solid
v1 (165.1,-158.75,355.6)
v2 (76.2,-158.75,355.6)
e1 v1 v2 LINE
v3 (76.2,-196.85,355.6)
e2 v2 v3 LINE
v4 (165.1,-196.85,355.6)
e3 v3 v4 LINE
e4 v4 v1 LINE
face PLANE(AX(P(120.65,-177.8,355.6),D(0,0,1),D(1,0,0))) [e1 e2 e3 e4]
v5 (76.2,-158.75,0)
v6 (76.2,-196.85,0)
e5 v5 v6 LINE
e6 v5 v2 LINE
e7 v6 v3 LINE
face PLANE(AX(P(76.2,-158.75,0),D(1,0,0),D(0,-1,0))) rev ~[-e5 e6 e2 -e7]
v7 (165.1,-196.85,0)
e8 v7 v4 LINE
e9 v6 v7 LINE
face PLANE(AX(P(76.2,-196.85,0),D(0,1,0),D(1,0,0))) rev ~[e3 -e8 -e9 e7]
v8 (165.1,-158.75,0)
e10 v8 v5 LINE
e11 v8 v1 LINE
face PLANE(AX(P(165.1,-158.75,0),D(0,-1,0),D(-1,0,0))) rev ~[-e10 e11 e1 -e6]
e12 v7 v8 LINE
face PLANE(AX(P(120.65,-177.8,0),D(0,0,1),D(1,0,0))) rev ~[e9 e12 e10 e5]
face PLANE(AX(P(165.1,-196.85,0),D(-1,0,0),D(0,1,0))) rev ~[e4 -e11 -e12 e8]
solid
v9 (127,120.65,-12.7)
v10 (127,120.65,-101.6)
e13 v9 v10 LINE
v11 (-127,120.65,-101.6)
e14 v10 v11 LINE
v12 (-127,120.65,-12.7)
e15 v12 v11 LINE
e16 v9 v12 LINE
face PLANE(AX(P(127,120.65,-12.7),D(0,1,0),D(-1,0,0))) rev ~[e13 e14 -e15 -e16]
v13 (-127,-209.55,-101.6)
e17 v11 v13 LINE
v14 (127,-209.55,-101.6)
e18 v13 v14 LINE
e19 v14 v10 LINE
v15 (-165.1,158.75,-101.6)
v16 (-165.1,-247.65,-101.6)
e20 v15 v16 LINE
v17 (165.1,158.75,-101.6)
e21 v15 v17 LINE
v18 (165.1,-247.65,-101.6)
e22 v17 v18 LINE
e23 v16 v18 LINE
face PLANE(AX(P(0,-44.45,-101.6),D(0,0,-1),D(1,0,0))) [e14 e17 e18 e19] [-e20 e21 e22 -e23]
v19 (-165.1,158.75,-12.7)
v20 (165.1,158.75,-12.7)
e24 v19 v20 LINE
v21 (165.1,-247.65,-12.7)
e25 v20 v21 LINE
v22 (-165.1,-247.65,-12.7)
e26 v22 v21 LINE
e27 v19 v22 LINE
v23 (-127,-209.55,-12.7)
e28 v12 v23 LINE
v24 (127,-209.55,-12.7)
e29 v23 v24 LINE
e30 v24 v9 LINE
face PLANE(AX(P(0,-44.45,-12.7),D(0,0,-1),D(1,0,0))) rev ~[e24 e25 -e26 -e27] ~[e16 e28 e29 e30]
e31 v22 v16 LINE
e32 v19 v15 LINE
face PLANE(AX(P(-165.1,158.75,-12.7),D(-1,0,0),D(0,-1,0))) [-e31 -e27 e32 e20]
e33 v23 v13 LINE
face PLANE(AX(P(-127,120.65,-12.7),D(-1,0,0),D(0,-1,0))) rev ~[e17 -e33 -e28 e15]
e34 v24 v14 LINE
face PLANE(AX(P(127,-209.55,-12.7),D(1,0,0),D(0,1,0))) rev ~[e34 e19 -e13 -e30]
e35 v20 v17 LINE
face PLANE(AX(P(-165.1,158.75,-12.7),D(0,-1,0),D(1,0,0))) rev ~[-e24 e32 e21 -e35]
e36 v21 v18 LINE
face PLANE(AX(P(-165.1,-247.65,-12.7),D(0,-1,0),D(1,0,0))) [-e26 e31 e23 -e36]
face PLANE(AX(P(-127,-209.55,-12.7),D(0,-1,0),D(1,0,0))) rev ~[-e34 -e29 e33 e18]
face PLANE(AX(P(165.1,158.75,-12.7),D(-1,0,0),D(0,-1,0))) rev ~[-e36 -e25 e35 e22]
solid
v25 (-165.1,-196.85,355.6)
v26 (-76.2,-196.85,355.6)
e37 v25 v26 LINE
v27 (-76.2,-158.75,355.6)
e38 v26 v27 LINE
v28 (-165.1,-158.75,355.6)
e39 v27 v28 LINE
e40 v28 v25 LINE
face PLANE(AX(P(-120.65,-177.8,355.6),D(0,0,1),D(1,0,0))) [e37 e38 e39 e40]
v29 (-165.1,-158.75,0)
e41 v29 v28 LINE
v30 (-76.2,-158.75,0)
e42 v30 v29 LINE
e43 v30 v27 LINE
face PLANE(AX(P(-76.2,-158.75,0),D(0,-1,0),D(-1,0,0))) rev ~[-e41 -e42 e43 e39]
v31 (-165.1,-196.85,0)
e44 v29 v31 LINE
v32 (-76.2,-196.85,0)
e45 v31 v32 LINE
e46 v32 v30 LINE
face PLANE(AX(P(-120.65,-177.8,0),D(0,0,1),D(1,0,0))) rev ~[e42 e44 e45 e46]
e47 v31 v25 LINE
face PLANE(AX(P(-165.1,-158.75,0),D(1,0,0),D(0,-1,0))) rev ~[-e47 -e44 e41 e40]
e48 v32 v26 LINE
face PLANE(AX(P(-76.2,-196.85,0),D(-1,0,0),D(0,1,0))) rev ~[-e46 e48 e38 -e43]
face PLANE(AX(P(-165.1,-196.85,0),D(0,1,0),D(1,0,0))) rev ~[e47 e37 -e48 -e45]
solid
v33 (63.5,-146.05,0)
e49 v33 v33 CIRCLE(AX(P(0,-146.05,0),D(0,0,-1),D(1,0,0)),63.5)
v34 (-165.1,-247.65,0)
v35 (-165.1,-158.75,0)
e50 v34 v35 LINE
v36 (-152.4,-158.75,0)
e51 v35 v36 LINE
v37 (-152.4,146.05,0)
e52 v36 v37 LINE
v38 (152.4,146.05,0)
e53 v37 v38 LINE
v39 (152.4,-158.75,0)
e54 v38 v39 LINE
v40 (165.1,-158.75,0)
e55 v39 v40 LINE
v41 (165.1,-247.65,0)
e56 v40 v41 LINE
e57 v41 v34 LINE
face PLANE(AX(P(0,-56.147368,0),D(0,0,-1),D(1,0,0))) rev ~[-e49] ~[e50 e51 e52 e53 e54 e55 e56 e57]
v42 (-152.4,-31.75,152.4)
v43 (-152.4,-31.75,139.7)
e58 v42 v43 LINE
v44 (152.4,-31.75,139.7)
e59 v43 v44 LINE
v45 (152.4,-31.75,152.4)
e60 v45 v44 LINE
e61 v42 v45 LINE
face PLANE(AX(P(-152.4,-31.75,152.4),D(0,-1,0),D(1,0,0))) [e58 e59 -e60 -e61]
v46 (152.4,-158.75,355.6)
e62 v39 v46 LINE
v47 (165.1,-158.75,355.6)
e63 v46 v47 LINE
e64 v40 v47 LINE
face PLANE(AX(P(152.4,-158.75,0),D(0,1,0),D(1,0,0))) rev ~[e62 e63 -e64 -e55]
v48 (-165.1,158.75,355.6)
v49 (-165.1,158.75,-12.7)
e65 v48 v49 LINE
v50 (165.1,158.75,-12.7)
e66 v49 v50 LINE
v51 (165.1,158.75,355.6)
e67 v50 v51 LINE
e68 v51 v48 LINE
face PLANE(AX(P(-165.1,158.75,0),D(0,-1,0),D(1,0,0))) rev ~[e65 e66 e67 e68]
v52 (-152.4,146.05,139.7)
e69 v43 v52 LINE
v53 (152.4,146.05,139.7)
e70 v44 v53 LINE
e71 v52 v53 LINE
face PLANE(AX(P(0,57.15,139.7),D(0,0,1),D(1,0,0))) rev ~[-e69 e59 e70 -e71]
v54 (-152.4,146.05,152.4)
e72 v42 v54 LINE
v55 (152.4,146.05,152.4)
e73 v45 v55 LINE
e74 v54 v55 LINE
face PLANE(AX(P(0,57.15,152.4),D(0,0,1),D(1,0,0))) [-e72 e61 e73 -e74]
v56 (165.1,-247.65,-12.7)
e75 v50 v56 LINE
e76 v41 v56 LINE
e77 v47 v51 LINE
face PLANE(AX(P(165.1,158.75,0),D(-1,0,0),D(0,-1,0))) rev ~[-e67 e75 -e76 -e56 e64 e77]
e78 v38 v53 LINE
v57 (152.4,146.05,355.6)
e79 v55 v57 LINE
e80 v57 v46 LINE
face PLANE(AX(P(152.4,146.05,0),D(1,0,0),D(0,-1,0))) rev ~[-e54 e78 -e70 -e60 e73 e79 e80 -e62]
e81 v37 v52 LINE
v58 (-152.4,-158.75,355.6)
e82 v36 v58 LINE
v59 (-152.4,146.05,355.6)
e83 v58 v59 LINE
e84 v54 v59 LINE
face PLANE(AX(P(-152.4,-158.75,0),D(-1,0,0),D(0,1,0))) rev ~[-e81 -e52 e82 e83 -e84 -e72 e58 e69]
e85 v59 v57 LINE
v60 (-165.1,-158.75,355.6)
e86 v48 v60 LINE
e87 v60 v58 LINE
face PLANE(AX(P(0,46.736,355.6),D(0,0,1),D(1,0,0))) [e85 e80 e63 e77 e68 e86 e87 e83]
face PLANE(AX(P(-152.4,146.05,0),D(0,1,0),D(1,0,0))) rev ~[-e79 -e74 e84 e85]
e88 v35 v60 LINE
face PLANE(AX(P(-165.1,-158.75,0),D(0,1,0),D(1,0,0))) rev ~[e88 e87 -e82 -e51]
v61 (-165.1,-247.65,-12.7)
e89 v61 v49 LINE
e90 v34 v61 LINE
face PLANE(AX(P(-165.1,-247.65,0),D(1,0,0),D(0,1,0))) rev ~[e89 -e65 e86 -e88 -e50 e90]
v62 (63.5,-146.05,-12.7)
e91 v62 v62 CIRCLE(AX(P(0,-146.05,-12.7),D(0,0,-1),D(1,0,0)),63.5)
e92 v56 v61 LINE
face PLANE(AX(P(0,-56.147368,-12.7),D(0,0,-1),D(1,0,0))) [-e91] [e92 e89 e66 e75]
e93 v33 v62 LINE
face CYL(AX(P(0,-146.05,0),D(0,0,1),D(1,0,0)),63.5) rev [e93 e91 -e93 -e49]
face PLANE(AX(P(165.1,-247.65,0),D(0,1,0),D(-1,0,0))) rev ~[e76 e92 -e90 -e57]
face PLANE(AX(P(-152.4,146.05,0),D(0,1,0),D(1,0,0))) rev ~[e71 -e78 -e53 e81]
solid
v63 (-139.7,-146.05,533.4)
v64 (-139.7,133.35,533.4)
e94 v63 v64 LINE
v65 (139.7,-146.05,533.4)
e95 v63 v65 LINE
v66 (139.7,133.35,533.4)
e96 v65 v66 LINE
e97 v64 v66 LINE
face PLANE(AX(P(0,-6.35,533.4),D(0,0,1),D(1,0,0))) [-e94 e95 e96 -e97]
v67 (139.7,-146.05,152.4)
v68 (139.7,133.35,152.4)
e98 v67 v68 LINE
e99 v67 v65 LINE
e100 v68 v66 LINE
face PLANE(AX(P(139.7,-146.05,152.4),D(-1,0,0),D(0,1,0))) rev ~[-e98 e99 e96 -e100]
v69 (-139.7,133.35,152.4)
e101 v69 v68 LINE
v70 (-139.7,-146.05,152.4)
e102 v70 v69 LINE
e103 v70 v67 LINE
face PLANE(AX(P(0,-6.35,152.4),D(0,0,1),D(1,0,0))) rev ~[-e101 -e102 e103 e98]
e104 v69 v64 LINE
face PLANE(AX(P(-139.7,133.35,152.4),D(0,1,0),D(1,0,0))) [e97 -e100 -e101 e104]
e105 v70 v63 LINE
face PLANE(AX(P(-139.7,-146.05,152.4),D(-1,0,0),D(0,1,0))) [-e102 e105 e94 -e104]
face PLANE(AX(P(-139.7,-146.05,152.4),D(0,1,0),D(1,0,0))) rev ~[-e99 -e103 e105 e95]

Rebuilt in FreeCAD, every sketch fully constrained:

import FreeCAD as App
import Part
import Sketcher
from FreeCAD import Vector
Q = App.Units.Quantity


def add_polygon(sketch, points):
    """Adds a closed chain of lines whose ends are joined by coincident constraints."""
    first, n = sketch.GeometryCount, len(points)
    for a, b in zip(points, points[1:] + points[:1]):
        sketch.addGeometry(Part.LineSegment(App.Vector(*a, 0), App.Vector(*b, 0)), False)
    for i in range(n):
        sketch.addConstraint(Sketcher.Constraint("Coincident", first + i, 2, first + (i + 1) % n, 1))

doc = App.newDocument("Part")
body = doc.addObject("PartDesign::Body", "Body")

# Sketch on XY plane
sketch1 = doc.addObject("Sketcher::SketchObject", "Sketch")
body.addObject(sketch1)
sketch1.AttachmentSupport = (doc.XY_Plane, [""])
sketch1.MapMode = "FlatFace"
add_polygon(sketch1, [(165, 159), (-165, 159), (-165, -159), (-152, -159), (-152, 146), (152, 146), (152, -159), (165, -159)])  # lines 0-7
sketch1.addConstraint(Sketcher.Constraint("Horizontal", 0))
sketch1.addConstraint(Sketcher.Constraint("Vertical", 1))
sketch1.addConstraint(Sketcher.Constraint("Horizontal", 2))
sketch1.addConstraint(Sketcher.Constraint("Vertical", 3))
sketch1.addConstraint(Sketcher.Constraint("Horizontal", 4))
sketch1.addConstraint(Sketcher.Constraint("Vertical", 5))
sketch1.addConstraint(Sketcher.Constraint("Horizontal", 6))
sketch1.addConstraint(Sketcher.Constraint("Vertical", 7))
sketch1.addConstraint(Sketcher.Constraint("Symmetric", 0, 2, 6, 2, -1, 1))
sketch1.addConstraint(Sketcher.Constraint("Symmetric", 2, 2, 5, 2, -2))
sketch1.addConstraint(Sketcher.Constraint("Equal", 4, 3))
sketch1.addConstraint(Sketcher.Constraint("DistanceX", 0, 2, 0, 1, Q("13 in")))
sketch1.addConstraint(Sketcher.Constraint("DistanceX", 4, 1, 4, 2, Q("12 in")))
sketch1.addConstraint(Sketcher.Constraint("DistanceY", 1, 2, 1, 1, Q("12.5 in")))
pad1 = doc.addObject("PartDesign::Pad", "Pad")
body.addObject(pad1)
pad1.Profile = sketch1
pad1.Length = Q("14 in")

# Sketch on XY plane
sketch2 = doc.addObject("Sketcher::SketchObject", "Sketch001")
body.addObject(sketch2)
sketch2.AttachmentSupport = (doc.XY_Plane, [""])
sketch2.MapMode = "FlatFace"
add_polygon(sketch2, [(165, -248), (-165, -248), (-165, 159), (165, 159)])  # lines 0-3
sketch2.addGeometry(Part.Circle(Vector(0, -146, 0), Vector(0, 0, 1), 64), False)  # 4
sketch2.addConstraint(Sketcher.Constraint("Horizontal", 0))
sketch2.addConstraint(Sketcher.Constraint("Vertical", 1))
sketch2.addConstraint(Sketcher.Constraint("Horizontal", 2))
sketch2.addConstraint(Sketcher.Constraint("Vertical", 3))
sketch2.addConstraint(Sketcher.Constraint("PointOnObject", 4, 3, -2))
sketch2.addConstraint(Sketcher.Constraint("Diameter", 4, Q("5 in")))
sketch2.addConstraint(Sketcher.Constraint("DistanceX", 0, 2, 0, 1, Q("13 in")))
sketch2.addConstraint(Sketcher.Constraint("DistanceY", 1, 1, 1, 2, Q("16 in")))
sketch2.addConstraint(Sketcher.Constraint("DistanceY", 0, 2, 4, 3, Q("4 in")))
sketch2.addConstraint(Sketcher.Constraint("DistanceX", 0, 2, -1, 1, Q("6.5 in")))
sketch2.addConstraint(Sketcher.Constraint("DistanceY", 4, 3, -1, 1, Q("5.75 in")))
pad2 = doc.addObject("PartDesign::Pad", "Pad001")
body.addObject(pad2)
pad2.Profile = sketch2
pad2.Length = Q("0.5 in")
pad2.Reversed = True

# Sketch on XY plane
sketch3 = doc.addObject("Sketcher::SketchObject", "Sketch002")
body.addObject(sketch3)
sketch3.AttachmentSupport = (doc.XY_Plane, [""])
sketch3.MapMode = "FlatFace"
sketch3.AttachmentOffset = App.Placement(Vector(0, 0, 6 * 25.4), App.Rotation())
add_polygon(sketch3, [(-152, 146), (-152, -32), (152, -32), (152, 146)])  # lines 0-3
sketch3.addConstraint(Sketcher.Constraint("Vertical", 0))
sketch3.addConstraint(Sketcher.Constraint("Horizontal", 1))
sketch3.addConstraint(Sketcher.Constraint("Vertical", 2))
sketch3.addConstraint(Sketcher.Constraint("Horizontal", 3))
sketch3.addConstraint(Sketcher.Constraint("DistanceX", 1, 1, 1, 2, Q("12 in")))
sketch3.addConstraint(Sketcher.Constraint("DistanceY", 0, 2, 0, 1, Q("7 in")))
sketch3.addConstraint(Sketcher.Constraint("DistanceX", 0, 2, -1, 1, Q("6 in")))
sketch3.addConstraint(Sketcher.Constraint("DistanceY", 0, 2, -1, 1, Q("1.25 in")))
pad3 = doc.addObject("PartDesign::Pad", "Pad002")
body.addObject(pad3)
pad3.Profile = sketch3
pad3.Length = Q("0.5 in")
pad3.Reversed = True
body2 = doc.addObject("PartDesign::Body", "Body001")

# Sketch on XY plane
sketch4 = doc.addObject("Sketcher::SketchObject", "Sketch003")
body2.addObject(sketch4)
sketch4.AttachmentSupport = (doc.getObject("XY_Plane001"), [""])
sketch4.MapMode = "FlatFace"
sketch4.AttachmentOffset = App.Placement(Vector(0, 0, -0.5 * 25.4), App.Rotation())
add_polygon(sketch4, [(-165, -248), (-165, 159), (165, 159), (165, -248)])  # lines 0-3
add_polygon(sketch4, [(127, -210), (127, 121), (-127, 121), (-127, -210)])  # lines 4-7
sketch4.addConstraint(Sketcher.Constraint("Vertical", 0))
sketch4.addConstraint(Sketcher.Constraint("Horizontal", 1))
sketch4.addConstraint(Sketcher.Constraint("Vertical", 2))
sketch4.addConstraint(Sketcher.Constraint("Horizontal", 3))
sketch4.addConstraint(Sketcher.Constraint("Vertical", 4))
sketch4.addConstraint(Sketcher.Constraint("Horizontal", 5))
sketch4.addConstraint(Sketcher.Constraint("Vertical", 6))
sketch4.addConstraint(Sketcher.Constraint("Horizontal", 7))
sketch4.addConstraint(Sketcher.Constraint("Equal", 3, 4))
sketch4.addConstraint(Sketcher.Constraint("DistanceX", 1, 1, 1, 2, Q("13 in")))
sketch4.addConstraint(Sketcher.Constraint("DistanceX", 5, 2, 5, 1, Q("10 in")))
sketch4.addConstraint(Sketcher.Constraint("DistanceY", 0, 1, 0, 2, Q("16 in")))
sketch4.addConstraint(Sketcher.Constraint("DistanceX", -1, 1, 4, 2, Q("5 in")))
sketch4.addConstraint(Sketcher.Constraint("DistanceX", 0, 2, -1, 1, Q("6.5 in")))
sketch4.addConstraint(Sketcher.Constraint("DistanceY", 4, 2, 1, 2, Q("1.5 in")))
sketch4.addConstraint(Sketcher.Constraint("DistanceY", -1, 1, 0, 2, Q("6.25 in")))
pad4 = doc.addObject("PartDesign::Pad", "Pad003")
body2.addObject(pad4)
pad4.Profile = sketch4
pad4.Length = Q("3.5 in")
pad4.Reversed = True
body3 = doc.addObject("PartDesign::Body", "Body002")

# Sketch on XY plane
sketch5 = doc.addObject("Sketcher::SketchObject", "Sketch004")
body3.addObject(sketch5)
sketch5.AttachmentSupport = (doc.getObject("XY_Plane002"), [""])
sketch5.MapMode = "FlatFace"
sketch5.AttachmentOffset = App.Placement(Vector(0, 0, 6 * 25.4), App.Rotation())
add_polygon(sketch5, [(-140, 133), (-140, -146), (140, -146), (140, 133)])  # lines 0-3
sketch5.addConstraint(Sketcher.Constraint("Vertical", 0))
sketch5.addConstraint(Sketcher.Constraint("Horizontal", 1))
sketch5.addConstraint(Sketcher.Constraint("Vertical", 2))
sketch5.addConstraint(Sketcher.Constraint("Horizontal", 3))
sketch5.addConstraint(Sketcher.Constraint("Equal", 3, 0))
sketch5.addConstraint(Sketcher.Constraint("DistanceX", 1, 1, 1, 2, Q("11 in")))
sketch5.addConstraint(Sketcher.Constraint("DistanceX", 0, 2, -1, 1, Q("5.5 in")))
sketch5.addConstraint(Sketcher.Constraint("DistanceY", 0, 2, -1, 1, Q("5.75 in")))
pad5 = doc.addObject("PartDesign::Pad", "Pad004")
body3.addObject(pad5)
pad5.Profile = sketch5
pad5.Length = Q("15 in")
body4 = doc.addObject("PartDesign::Body", "Body003")

# Sketch on XY plane
sketch6 = doc.addObject("Sketcher::SketchObject", "Sketch005")
body4.addObject(sketch6)
sketch6.AttachmentSupport = (doc.getObject("XY_Plane003"), [""])
sketch6.MapMode = "FlatFace"
add_polygon(sketch6, [(-165, -159), (-165, -197), (-76, -197), (-76, -159)])  # lines 0-3
sketch6.addConstraint(Sketcher.Constraint("Vertical", 0))
sketch6.addConstraint(Sketcher.Constraint("Horizontal", 1))
sketch6.addConstraint(Sketcher.Constraint("Vertical", 2))
sketch6.addConstraint(Sketcher.Constraint("Horizontal", 3))
sketch6.addConstraint(Sketcher.Constraint("DistanceX", 1, 1, 1, 2, Q("3.5 in")))
sketch6.addConstraint(Sketcher.Constraint("DistanceY", 0, 2, 0, 1, Q("1.5 in")))
sketch6.addConstraint(Sketcher.Constraint("DistanceX", 1, 2, -1, 1, Q("3 in")))
sketch6.addConstraint(Sketcher.Constraint("DistanceY", 0, 2, -1, 1, Q("7.75 in")))
pad6 = doc.addObject("PartDesign::Pad", "Pad005")
body4.addObject(pad6)
pad6.Profile = sketch6
pad6.Length = Q("14 in")
body5 = doc.addObject("PartDesign::Body", "Body004")

# Sketch on XY plane
sketch7 = doc.addObject("Sketcher::SketchObject", "Sketch006")
body5.addObject(sketch7)
sketch7.AttachmentSupport = (doc.getObject("XY_Plane004"), [""])
sketch7.MapMode = "FlatFace"
add_polygon(sketch7, [(76, -197), (165, -197), (165, -159), (76, -159)])  # lines 0-3
sketch7.addConstraint(Sketcher.Constraint("Horizontal", 0))
sketch7.addConstraint(Sketcher.Constraint("Vertical", 1))
sketch7.addConstraint(Sketcher.Constraint("Horizontal", 2))
sketch7.addConstraint(Sketcher.Constraint("Vertical", 3))
sketch7.addConstraint(Sketcher.Constraint("DistanceX", 0, 1, 0, 2, Q("3.5 in")))
sketch7.addConstraint(Sketcher.Constraint("DistanceY", 1, 1, 1, 2, Q("1.5 in")))
sketch7.addConstraint(Sketcher.Constraint("DistanceX", -1, 1, 2, 2, Q("3 in")))
sketch7.addConstraint(Sketcher.Constraint("DistanceY", 0, 2, -1, 1, Q("7.75 in")))
pad7 = doc.addObject("PartDesign::Pad", "Pad006")
body5.addObject(pad7)
pad7.Profile = sketch7
pad7.Length = Q("14 in")

doc.recompute()
